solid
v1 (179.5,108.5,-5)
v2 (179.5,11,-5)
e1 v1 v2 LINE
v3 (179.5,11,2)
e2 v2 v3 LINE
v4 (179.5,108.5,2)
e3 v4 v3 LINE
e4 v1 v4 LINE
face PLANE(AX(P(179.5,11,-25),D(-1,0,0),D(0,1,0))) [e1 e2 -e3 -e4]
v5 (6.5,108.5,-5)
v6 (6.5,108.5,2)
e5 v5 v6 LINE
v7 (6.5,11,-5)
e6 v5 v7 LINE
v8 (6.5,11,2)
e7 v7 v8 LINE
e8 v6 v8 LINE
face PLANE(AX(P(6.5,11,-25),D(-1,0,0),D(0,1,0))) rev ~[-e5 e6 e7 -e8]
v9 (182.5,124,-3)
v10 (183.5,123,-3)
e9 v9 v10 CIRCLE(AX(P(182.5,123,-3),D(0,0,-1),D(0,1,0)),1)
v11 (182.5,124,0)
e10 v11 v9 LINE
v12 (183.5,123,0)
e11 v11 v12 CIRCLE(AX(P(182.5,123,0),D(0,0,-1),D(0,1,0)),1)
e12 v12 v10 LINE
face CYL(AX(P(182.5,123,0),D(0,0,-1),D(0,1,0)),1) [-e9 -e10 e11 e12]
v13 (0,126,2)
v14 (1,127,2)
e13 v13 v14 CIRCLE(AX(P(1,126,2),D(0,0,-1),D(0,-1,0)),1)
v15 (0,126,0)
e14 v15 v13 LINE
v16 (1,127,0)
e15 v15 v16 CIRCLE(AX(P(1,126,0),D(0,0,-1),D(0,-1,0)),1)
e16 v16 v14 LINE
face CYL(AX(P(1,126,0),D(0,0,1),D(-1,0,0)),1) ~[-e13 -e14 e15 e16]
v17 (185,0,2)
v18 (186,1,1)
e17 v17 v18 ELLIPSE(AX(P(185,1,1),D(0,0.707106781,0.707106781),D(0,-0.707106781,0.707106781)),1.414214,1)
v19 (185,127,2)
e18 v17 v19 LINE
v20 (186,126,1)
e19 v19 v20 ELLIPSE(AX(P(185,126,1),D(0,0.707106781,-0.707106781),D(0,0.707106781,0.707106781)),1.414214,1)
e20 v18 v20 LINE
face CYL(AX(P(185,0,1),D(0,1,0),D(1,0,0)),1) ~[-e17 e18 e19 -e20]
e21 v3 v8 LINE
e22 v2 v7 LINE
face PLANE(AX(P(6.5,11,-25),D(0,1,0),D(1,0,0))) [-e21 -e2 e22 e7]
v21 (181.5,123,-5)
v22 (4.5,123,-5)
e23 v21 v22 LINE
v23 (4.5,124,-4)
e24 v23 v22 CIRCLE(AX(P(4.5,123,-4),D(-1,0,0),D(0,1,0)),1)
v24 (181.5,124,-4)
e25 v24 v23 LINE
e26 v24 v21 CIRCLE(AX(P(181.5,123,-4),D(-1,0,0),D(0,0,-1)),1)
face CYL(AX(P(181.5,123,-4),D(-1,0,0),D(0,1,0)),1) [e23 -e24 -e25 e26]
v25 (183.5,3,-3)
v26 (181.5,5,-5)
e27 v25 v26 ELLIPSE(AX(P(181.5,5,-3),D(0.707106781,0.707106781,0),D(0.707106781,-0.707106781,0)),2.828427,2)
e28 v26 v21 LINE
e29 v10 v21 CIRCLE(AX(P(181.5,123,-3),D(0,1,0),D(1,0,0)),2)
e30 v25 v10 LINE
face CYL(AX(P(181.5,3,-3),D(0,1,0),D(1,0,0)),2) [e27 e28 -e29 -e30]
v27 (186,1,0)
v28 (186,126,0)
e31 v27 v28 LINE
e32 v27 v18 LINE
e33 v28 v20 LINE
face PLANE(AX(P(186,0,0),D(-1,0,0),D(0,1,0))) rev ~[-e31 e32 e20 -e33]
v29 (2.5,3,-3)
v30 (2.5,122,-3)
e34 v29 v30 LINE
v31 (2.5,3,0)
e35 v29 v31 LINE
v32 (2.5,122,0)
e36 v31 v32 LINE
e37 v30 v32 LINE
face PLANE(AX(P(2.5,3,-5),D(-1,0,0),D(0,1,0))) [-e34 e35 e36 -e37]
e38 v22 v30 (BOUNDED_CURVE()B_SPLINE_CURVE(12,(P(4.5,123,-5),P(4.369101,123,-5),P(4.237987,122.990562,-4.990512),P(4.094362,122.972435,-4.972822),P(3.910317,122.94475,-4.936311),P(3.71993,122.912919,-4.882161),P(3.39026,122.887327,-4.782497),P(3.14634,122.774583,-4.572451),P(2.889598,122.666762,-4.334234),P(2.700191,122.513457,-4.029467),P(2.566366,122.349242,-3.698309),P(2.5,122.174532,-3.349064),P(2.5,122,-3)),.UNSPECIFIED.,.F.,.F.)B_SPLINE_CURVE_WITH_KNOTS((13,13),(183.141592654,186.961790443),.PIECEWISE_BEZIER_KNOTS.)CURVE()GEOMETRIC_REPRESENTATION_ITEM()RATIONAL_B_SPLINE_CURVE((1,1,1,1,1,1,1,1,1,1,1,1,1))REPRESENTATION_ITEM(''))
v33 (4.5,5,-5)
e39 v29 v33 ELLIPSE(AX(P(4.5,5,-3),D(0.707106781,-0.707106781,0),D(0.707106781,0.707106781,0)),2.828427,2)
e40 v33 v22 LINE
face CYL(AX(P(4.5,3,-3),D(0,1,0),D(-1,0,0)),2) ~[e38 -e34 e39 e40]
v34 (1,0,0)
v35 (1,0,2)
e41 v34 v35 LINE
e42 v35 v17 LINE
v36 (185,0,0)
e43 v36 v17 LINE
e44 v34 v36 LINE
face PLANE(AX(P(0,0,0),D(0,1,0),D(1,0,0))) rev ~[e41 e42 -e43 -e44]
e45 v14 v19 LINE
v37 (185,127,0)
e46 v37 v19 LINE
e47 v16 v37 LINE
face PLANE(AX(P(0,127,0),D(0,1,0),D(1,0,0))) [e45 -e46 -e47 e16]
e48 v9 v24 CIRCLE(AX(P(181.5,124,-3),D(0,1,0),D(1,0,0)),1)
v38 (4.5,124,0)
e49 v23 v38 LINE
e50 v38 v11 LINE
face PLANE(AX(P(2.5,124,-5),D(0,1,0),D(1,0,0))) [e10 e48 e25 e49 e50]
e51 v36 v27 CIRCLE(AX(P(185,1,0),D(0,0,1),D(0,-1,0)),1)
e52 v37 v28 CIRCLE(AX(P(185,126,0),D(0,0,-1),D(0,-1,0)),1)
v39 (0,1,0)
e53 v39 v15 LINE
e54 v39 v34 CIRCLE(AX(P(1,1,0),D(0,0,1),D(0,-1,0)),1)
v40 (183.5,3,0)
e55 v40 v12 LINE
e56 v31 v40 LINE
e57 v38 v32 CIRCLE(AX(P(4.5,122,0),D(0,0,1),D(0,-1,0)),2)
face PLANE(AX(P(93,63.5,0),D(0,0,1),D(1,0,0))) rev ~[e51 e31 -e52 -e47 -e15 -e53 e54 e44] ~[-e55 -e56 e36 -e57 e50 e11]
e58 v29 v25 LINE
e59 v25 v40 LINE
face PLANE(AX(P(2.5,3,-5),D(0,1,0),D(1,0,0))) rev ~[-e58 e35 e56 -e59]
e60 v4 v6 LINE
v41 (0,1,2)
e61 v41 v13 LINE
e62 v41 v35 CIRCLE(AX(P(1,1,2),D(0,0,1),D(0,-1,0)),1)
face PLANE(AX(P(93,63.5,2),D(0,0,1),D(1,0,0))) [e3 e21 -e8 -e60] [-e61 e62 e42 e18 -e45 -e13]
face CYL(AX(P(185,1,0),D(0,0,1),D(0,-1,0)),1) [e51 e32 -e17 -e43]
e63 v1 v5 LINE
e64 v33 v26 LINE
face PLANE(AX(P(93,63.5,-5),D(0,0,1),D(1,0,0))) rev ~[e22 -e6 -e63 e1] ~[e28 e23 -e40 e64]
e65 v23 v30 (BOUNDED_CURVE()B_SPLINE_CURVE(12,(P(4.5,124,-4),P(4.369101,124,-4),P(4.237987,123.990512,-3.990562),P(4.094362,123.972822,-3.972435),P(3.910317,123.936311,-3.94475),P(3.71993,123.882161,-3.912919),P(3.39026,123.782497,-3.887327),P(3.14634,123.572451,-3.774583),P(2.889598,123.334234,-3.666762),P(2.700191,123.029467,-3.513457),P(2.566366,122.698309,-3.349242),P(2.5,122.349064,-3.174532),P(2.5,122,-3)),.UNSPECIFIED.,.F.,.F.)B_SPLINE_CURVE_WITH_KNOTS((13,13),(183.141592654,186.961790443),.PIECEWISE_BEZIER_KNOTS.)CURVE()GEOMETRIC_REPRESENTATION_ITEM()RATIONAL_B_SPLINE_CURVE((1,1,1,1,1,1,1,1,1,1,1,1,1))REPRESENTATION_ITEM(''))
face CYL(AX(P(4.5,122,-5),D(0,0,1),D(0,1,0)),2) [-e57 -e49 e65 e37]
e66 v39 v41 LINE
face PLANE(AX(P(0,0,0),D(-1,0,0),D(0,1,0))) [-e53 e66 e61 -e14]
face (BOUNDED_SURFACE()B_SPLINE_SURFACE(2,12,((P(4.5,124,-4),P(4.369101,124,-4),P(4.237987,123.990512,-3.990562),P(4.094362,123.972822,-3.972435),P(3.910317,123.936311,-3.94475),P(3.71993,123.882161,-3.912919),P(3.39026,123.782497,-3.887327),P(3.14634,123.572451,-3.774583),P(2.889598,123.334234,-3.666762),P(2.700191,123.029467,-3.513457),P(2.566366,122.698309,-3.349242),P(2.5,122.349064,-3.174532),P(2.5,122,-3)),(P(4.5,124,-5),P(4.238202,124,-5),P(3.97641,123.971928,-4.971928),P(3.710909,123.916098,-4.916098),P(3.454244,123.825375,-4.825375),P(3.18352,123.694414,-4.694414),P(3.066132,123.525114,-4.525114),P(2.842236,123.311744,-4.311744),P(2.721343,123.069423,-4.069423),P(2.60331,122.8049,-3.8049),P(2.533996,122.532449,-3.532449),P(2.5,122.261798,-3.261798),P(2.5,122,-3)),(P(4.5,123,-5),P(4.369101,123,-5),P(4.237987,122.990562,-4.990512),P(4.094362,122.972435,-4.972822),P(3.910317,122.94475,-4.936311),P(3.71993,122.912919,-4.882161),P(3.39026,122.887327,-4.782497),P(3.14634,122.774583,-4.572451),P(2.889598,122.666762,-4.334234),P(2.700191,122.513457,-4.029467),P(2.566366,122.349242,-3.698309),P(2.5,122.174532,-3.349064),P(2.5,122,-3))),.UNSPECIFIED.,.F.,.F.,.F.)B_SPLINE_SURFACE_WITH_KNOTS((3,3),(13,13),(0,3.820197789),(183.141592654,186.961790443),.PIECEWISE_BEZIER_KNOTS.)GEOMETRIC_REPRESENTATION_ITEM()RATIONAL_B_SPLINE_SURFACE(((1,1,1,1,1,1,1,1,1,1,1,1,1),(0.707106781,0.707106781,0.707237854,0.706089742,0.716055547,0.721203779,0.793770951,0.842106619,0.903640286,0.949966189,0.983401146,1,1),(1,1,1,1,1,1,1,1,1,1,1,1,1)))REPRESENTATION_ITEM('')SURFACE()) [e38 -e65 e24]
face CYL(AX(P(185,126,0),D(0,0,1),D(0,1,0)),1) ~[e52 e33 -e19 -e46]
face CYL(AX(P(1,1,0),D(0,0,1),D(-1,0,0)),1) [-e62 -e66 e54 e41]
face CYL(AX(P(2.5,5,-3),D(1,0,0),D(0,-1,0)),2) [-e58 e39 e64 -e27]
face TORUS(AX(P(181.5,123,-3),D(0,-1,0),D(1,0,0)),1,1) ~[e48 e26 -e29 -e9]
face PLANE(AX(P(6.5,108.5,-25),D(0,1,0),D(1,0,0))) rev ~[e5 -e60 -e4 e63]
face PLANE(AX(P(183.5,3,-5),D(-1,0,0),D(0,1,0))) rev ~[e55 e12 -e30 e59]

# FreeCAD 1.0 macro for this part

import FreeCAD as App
import Part
import Sketcher


def edges_at(feature, points):
    """Names of the edges that pass closest to the given points."""
    edges = feature.Shape.Edges
    near = lambda p: min(range(len(edges)), key=lambda i: edges[i].distToShape(Part.Vertex(*p))[0])
    return sorted({f"Edge{near(p) + 1}" for p in points})


def add_polygon(sketch, points):
    """Adds a closed chain of lines whose ends are joined by coincident constraints."""
    first, n = sketch.GeometryCount, len(points)
    for a, b in zip(points, points[1:] + points[:1]):
        sketch.addGeometry(Part.LineSegment(App.Vector(*a, 0), App.Vector(*b, 0)), False)
    for i in range(n):
        sketch.addConstraint(Sketcher.Constraint("Coincident", first + i, 2, first + (i + 1) % n, 1))

doc = App.newDocument("Part")
body = doc.addObject("PartDesign::Body", "Body")

# Sketch on XY plane
sketch1 = body.newObject("Sketcher::SketchObject", "Sketch")
sketch1.AttachmentSupport = (doc.getObject("XY_Plane"), [""])
sketch1.MapMode = "FlatFace"
sketch1.AttachmentOffset = App.Placement(App.Vector(0, 0, -25), App.Rotation())
add_polygon(sketch1, [(6.5, 108.5), (6.5, 11), (179.5, 11), (179.5, 108.5)])  # lines 0-3
sketch1.addConstraint(Sketcher.Constraint("Vertical", 0))
sketch1.addConstraint(Sketcher.Constraint("Horizontal", 1))
sketch1.addConstraint(Sketcher.Constraint("Vertical", 2))
sketch1.addConstraint(Sketcher.Constraint("Horizontal", 3))
sketch1.addConstraint(Sketcher.Constraint("DistanceX", 1, 1, 1, 2, 173.0))
sketch1.addConstraint(Sketcher.Constraint("DistanceY", 0, 2, 0, 1, 97.5))
sketch1.addConstraint(Sketcher.Constraint("DistanceY", -1, 1, 0, 2, 11.0))
sketch1.addConstraint(Sketcher.Constraint("DistanceX", -1, 1, 0, 2, 6.5))
pad1 = body.newObject("PartDesign::Pad", "Pad")
pad1.Profile = sketch1
pad1.Length = 30
body2 = doc.addObject("PartDesign::Body", "Body001")

# Sketch on XY plane
sketch2 = body2.newObject("Sketcher::SketchObject", "Sketch001")
sketch2.AttachmentSupport = (doc.getObject("XY_Plane001"), [""])
sketch2.MapMode = "FlatFace"
sketch2.AttachmentOffset = App.Placement(App.Vector(0, 0, -5), App.Rotation())
add_polygon(sketch2, [(2.5, 124), (2.5, 3), (183.5, 3), (183.5, 124)])  # lines 0-3
sketch2.addConstraint(Sketcher.Constraint("Vertical", 0))
sketch2.addConstraint(Sketcher.Constraint("Horizontal", 1))
sketch2.addConstraint(Sketcher.Constraint("Vertical", 2))
sketch2.addConstraint(Sketcher.Constraint("Horizontal", 3))
sketch2.addConstraint(Sketcher.Constraint("DistanceX", 1, 1, 1, 2, 181.0))
sketch2.addConstraint(Sketcher.Constraint("DistanceY", 0, 2, 0, 1, 121.0))
sketch2.addConstraint(Sketcher.Constraint("DistanceY", -1, 1, 0, 2, 3.0))
sketch2.addConstraint(Sketcher.Constraint("DistanceX", -1, 1, 0, 2, 2.5))
pad2 = body2.newObject("PartDesign::Pad", "Pad001")
pad2.Profile = sketch2
pad2.Length = 5
body3 = doc.addObject("PartDesign::Body", "Body002")

# Sketch on XY plane
sketch3 = body3.newObject("Sketcher::SketchObject", "Sketch002")
sketch3.AttachmentSupport = (doc.getObject("XY_Plane002"), [""])
sketch3.MapMode = "FlatFace"
add_polygon(sketch3, [(0, 127), (0, 0), (186, 0), (186, 127)])  # lines 0-3
sketch3.addConstraint(Sketcher.Constraint("Vertical", 0))
sketch3.addConstraint(Sketcher.Constraint("Horizontal", 1))
sketch3.addConstraint(Sketcher.Constraint("Vertical", 2))
sketch3.addConstraint(Sketcher.Constraint("Horizontal", 3))
sketch3.addConstraint(Sketcher.Constraint("Coincident", 0, 2, -1, 1))
sketch3.addConstraint(Sketcher.Constraint("DistanceX", 1, 1, 1, 2, 186.0))
sketch3.addConstraint(Sketcher.Constraint("DistanceY", 0, 2, 0, 1, 127.0))
pad3 = body3.newObject("PartDesign::Pad", "Pad002")
pad3.Profile = sketch3
pad3.Length = 2
doc.recompute()

boolean = body3.newObject("PartDesign::Boolean", "Boolean")
boolean.Type = "Fuse"
boolean.addObjects([body2])
doc.recompute()

boolean2 = body3.newObject("PartDesign::Boolean", "Boolean001")
boolean2.Type = "Cut"
boolean2.addObjects([body])
doc.recompute()

fillet = body3.newObject("PartDesign::Fillet", "Fillet")
fillet.Base = (boolean2, edges_at(boolean2, [
    (2.5, 124, -2.5),
    (2.5, 63.5, -5),
    (93, 3, -5),
    (183.5, 63.5, -5),
]))
fillet.Radius = 2
doc.recompute()

fillet2 = body3.newObject("PartDesign::Fillet", "Fillet001")
fillet2.Base = (fillet, edges_at(fillet, [
    (2.973, 123.292, -4.292),
    (93, 3, -3),
    (183.5, 124, -1.5),
    (0, 0, 1),
    (0, 127, 1),
    (186, 127, 1),
    (186, 0, 1),
    (186, 63.5, 2),
]))
fillet2.Radius = 1

doc.recompute()
